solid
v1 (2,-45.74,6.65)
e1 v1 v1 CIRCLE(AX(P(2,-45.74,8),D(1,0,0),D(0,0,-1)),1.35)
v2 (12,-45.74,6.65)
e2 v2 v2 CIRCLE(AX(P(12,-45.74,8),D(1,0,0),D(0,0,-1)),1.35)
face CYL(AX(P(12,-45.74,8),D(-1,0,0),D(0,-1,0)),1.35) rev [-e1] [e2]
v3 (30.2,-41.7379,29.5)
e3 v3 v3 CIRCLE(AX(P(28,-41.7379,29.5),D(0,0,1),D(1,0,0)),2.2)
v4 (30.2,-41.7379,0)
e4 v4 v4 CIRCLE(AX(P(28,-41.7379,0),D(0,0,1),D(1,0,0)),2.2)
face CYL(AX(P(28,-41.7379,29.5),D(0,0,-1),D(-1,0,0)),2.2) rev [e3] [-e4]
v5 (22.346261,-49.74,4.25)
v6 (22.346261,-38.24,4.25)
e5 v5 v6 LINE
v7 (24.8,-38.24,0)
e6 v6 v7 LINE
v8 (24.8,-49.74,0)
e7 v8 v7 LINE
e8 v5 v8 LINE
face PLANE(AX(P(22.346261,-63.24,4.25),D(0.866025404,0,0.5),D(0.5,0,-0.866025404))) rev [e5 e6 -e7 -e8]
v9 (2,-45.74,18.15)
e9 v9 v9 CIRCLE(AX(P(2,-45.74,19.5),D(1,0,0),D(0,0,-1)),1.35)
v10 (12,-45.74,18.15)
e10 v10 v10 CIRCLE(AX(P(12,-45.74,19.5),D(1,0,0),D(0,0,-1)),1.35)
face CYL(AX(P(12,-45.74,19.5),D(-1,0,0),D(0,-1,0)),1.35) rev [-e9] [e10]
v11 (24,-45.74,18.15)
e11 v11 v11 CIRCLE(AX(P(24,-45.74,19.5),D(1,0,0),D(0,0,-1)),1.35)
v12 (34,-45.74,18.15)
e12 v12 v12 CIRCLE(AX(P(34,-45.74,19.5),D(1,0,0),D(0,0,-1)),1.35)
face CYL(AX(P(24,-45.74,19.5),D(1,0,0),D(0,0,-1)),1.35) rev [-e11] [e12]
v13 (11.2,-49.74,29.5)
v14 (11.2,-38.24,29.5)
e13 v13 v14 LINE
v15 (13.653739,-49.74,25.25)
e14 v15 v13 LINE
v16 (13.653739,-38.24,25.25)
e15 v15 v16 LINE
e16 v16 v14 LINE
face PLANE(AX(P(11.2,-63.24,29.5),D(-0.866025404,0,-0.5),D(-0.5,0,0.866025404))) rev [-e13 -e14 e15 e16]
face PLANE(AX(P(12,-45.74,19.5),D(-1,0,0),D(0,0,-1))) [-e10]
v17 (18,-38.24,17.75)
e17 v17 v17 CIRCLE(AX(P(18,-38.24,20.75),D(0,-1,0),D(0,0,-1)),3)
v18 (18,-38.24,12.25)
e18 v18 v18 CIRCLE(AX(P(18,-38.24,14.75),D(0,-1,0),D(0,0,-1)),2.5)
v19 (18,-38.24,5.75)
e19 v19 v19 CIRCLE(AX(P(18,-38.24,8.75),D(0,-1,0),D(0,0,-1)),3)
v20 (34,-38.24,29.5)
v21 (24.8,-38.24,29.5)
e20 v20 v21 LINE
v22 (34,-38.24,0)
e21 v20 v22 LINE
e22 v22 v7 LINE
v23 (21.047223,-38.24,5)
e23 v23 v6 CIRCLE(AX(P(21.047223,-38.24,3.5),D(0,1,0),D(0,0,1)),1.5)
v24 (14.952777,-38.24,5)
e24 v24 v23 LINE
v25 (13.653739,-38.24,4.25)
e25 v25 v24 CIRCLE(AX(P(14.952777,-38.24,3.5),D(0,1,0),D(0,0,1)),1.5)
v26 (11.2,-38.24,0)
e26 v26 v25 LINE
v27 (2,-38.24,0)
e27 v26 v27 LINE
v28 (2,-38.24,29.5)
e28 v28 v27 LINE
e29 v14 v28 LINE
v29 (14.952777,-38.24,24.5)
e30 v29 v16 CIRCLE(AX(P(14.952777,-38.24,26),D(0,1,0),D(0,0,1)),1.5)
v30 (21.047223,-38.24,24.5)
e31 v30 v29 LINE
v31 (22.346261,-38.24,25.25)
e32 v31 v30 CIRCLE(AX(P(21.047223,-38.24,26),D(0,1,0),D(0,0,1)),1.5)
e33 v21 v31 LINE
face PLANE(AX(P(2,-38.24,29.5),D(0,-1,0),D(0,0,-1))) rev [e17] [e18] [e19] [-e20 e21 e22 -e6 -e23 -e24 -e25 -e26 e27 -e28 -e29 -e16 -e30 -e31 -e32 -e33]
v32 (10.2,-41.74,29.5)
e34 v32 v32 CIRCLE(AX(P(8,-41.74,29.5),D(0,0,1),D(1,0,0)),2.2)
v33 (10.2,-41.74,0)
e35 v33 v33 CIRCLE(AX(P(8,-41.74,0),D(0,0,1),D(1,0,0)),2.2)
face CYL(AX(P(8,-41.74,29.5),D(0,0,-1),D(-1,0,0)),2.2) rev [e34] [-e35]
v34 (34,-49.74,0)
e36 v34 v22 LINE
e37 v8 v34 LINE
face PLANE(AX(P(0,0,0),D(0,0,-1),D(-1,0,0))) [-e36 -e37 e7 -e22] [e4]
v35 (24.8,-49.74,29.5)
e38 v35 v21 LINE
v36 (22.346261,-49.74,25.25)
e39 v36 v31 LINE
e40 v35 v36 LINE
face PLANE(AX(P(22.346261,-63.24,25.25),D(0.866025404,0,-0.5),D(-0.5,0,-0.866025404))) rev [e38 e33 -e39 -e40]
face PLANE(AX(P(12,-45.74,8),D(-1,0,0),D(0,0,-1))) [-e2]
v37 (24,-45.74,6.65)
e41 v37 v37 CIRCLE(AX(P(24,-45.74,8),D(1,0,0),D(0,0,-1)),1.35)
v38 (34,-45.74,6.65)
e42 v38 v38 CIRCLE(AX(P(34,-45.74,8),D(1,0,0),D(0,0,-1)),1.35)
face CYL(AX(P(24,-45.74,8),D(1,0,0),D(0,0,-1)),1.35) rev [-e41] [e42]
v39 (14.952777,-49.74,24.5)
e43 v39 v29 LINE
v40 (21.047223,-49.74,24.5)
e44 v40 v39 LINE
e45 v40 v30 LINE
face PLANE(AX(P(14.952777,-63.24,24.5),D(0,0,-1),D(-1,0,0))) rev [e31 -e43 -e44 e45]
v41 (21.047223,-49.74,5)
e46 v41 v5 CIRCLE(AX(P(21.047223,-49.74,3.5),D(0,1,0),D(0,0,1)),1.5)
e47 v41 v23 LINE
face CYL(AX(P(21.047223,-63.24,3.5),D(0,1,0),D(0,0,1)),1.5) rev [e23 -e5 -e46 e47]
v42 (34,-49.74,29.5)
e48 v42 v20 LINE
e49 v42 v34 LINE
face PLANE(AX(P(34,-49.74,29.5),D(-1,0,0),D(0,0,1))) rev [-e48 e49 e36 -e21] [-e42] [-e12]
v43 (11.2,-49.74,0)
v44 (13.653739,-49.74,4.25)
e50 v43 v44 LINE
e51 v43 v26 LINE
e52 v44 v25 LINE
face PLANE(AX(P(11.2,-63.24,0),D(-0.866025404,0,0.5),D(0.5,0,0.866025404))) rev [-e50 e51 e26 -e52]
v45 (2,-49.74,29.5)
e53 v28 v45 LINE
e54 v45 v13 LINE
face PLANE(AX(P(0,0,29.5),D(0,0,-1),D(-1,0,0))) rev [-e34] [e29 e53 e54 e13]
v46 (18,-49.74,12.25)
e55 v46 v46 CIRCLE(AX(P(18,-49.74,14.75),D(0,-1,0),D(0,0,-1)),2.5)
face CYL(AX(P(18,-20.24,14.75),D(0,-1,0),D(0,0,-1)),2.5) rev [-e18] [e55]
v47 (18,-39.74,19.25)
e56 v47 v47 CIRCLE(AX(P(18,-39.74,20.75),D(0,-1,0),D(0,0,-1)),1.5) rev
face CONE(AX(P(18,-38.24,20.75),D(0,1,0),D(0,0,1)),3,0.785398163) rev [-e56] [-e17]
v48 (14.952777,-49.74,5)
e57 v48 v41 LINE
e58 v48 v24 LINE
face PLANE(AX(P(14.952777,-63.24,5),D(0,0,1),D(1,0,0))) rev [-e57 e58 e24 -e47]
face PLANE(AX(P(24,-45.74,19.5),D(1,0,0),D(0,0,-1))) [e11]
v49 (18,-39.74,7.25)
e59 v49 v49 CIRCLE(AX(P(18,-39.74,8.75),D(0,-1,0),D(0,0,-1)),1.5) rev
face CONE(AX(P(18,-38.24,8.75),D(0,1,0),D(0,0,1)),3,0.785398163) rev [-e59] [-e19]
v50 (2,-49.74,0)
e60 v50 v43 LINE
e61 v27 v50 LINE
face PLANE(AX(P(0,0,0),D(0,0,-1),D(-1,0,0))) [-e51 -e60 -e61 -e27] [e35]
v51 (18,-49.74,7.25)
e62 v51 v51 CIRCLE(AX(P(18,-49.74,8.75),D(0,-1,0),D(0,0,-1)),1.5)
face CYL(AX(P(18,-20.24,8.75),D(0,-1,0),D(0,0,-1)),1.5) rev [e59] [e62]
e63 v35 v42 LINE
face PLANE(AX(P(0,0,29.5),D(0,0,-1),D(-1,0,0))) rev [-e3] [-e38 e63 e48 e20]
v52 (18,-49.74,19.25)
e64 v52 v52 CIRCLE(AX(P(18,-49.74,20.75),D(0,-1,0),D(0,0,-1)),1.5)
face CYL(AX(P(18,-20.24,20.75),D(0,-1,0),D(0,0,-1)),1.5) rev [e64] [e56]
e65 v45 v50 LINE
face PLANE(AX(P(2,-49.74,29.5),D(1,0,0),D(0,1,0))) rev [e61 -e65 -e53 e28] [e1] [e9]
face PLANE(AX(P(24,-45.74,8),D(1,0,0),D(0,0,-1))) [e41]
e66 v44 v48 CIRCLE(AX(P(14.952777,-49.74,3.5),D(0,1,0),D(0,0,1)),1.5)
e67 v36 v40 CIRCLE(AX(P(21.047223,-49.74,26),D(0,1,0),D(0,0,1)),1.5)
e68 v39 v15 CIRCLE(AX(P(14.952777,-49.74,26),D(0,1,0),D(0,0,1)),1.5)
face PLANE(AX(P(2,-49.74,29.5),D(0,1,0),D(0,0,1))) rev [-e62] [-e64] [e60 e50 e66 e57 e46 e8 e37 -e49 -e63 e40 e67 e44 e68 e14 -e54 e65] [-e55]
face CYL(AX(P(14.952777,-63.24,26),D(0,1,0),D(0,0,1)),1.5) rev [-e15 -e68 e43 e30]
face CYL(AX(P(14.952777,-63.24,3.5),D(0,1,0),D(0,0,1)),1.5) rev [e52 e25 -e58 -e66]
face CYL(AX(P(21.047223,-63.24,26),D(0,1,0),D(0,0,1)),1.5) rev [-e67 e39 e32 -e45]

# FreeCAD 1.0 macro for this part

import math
import FreeCAD as App
import Part
import Sketcher
from FreeCAD import Vector
Q = App.Units.Quantity


def edges_at(feature, points):
    """Names of the edges that pass closest to the given points."""
    edges = feature.Shape.Edges
    near = lambda p: min(range(len(edges)), key=lambda i: edges[i].distToShape(Part.Vertex(*p))[0])
    return sorted({f"Edge{near(p) + 1}" for p in points})


def add_polygon(sketch, points):
    """Adds a closed chain of lines whose ends are joined by coincident constraints."""
    first, n = sketch.GeometryCount, len(points)
    for a, b in zip(points, points[1:] + points[:1]):
        sketch.addGeometry(Part.LineSegment(App.Vector(*a, 0), App.Vector(*b, 0)), False)
    for i in range(n):
        sketch.addConstraint(Sketcher.Constraint("Coincident", first + i, 2, first + (i + 1) % n, 1))

doc = App.newDocument("Part")
params = doc.addObject("Spreadsheet::Sheet", "Params")
for row, (alias, value) in enumerate([
    ("sketch1_diameter", "4.4 mm"),
    ("sketch1_width", "32 mm"),
    ("sketch1_height", "11.5 mm"),
    ("pad1_length", "29.5 mm"),
    ("sketch2_diameter", "5 mm"),
    ("pocket1_length", "29.5 mm"),
    ("sketch3_diameter", "3 mm"),
    ("pocket2_length", "29.5 mm"),
    ("chamfer_size", "1.5 mm"),
    ("sketch4_diameter", "2.7 mm"),
    ("pocket3_length", "10 mm"),
    ("sketch5_radius", "1.5 mm"),
    ("sketch5_width", "13.6 mm"),
    ("pocket4_length", "25 mm"),
], start=1):
    params.set(f"A{row}", alias)
    params.set(f"B{row}", "=" + value)
    params.setAlias(f"B{row}", alias)

body = doc.addObject("PartDesign::Body", "Body")

# Sketch on XY plane
sketch1 = body.newObject("Sketcher::SketchObject", "Sketch")
sketch1.AttachmentSupport = (doc.getObject("XY_Plane"), [""])
sketch1.MapMode = "FlatFace"
add_polygon(sketch1, [(2, -38.2), (2, -49.7), (34, -49.7), (34, -38.2)])  # lines 0-3
sketch1.addGeometry(Part.Circle(Vector(8, -41.7, 0), Vector(0, 0, 1), 2.2), False)  # 4
sketch1.addGeometry(Part.Circle(Vector(28, -41.7, 0), Vector(0, 0, 1), 2.2), False)  # 5
sketch1.addConstraint([
    Sketcher.Constraint("Vertical", 0),
    Sketcher.Constraint("Horizontal", 1),
    Sketcher.Constraint("Vertical", 2),
    Sketcher.Constraint("Horizontal", 3),
    Sketcher.Constraint("Equal", 4, 5),
    Sketcher.Constraint("Diameter", 4, Q("4.4 mm")),
    Sketcher.Constraint("DistanceX", 1, 1, 1, 2, Q("32 mm")),
    Sketcher.Constraint("DistanceY", 0, 2, 0, 1, Q("11.5 mm")),
    Sketcher.Constraint("DistanceX", -1, 1, 4, 3, Q("8 mm")),
    Sketcher.Constraint("DistanceX", -1, 1, 5, 3, Q("28 mm")),
    Sketcher.Constraint("DistanceX", -1, 1, 0, 2, Q("2 mm")),
    Sketcher.Constraint("DistanceY", 0, 2, 4, 3, Q("8 mm")),
    Sketcher.Constraint("DistanceY", 4, 3, -1, 1, Q("41.74 mm")),
    Sketcher.Constraint("DistanceY", 5, 3, -1, 1, Q("41.7379 mm")),
])
sketch1.setExpression("Constraints[9]", "Params.sketch1_diameter")
sketch1.setExpression("Constraints[10]", "Params.sketch1_width")
sketch1.setExpression("Constraints[11]", "Params.sketch1_height")
pad1 = body.newObject("PartDesign::Pad", "Pad")
pad1.Profile = sketch1
pad1.setExpression("Length", "Params.pad1_length")

# Sketch on XZ plane
sketch2 = body.newObject("Sketcher::SketchObject", "Sketch001")
sketch2.AttachmentSupport = (doc.getObject("XZ_Plane"), [""])
sketch2.MapMode = "FlatFace"
sketch2.AttachmentOffset = App.Placement(Vector(0, 0, 49.74), App.Rotation())
sketch2.addGeometry(Part.Circle(Vector(18, 14.8, 0), Vector(0, 0, 1), 2.5), False)
sketch2.addConstraint([
    Sketcher.Constraint("Diameter", 0, Q("5 mm")),
    Sketcher.Constraint("DistanceX", -1, 1, 0, 3, Q("18 mm")),
    Sketcher.Constraint("DistanceY", -1, 1, 0, 3, Q("14.75 mm")),
])
sketch2.setExpression("Constraints[0]", "Params.sketch2_diameter")
pocket1 = body.newObject("PartDesign::Pocket", "Pocket")
pocket1.Profile = sketch2
pocket1.setExpression("Length", "Params.pocket1_length")

# Sketch on XZ plane
sketch3 = body.newObject("Sketcher::SketchObject", "Sketch002")
sketch3.AttachmentSupport = (doc.getObject("XZ_Plane"), [""])
sketch3.MapMode = "FlatFace"
sketch3.AttachmentOffset = App.Placement(Vector(0, 0, 49.74), App.Rotation())
sketch3.addGeometry([
    Part.Circle(Vector(18, 8.8, 0), Vector(0, 0, 1), 1.5),
    Part.Circle(Vector(18, 20.8, 0), Vector(0, 0, 1), 1.5),
], False)
sketch3.addConstraint([
    Sketcher.Constraint("Equal", 0, 1),
    Sketcher.Constraint("Vertical", 0, 3, 1, 3),
    Sketcher.Constraint("Diameter", 0, Q("3 mm")),
    Sketcher.Constraint("DistanceX", -1, 1, 0, 3, Q("18 mm")),
    Sketcher.Constraint("DistanceY", 0, 3, 1, 3, Q("12 mm")),
    Sketcher.Constraint("DistanceY", -1, 1, 0, 3, Q("8.75 mm")),
])
sketch3.setExpression("Constraints[2]", "Params.sketch3_diameter")
pocket2 = body.newObject("PartDesign::Pocket", "Pocket001")
pocket2.Profile = sketch3
pocket2.setExpression("Length", "Params.pocket2_length")
doc.recompute()

chamfer = body.newObject("PartDesign::Chamfer", "Chamfer")
chamfer.Base = (pocket2, edges_at(pocket2, [(18, -38.24, 10.25), (18, -38.24, 22.25)]))
chamfer.setExpression("Size", "Params.chamfer_size")

# Sketch on YZ plane
sketch4 = body.newObject("Sketcher::SketchObject", "Sketch003")
sketch4.AttachmentSupport = (doc.getObject("YZ_Plane"), [""])
sketch4.MapMode = "FlatFace"
sketch4.AttachmentOffset = App.Placement(Vector(0, 0, 34), App.Rotation())
sketch4.addGeometry([
    Part.Circle(Vector(-45.7, 19.5, 0), Vector(0, 0, 1), 1.4),
    Part.Circle(Vector(-45.7, 8, 0), Vector(0, 0, 1), 1.4),
], False)
sketch4.addConstraint([
    Sketcher.Constraint("Equal", 0, 1),
    Sketcher.Constraint("Vertical", 0, 3, 1, 3),
    Sketcher.Constraint("Diameter", 0, Q("2.7 mm")),
    Sketcher.Constraint("DistanceY", -1, 1, 1, 3, Q("8 mm")),
    Sketcher.Constraint("DistanceY", -1, 1, 0, 3, Q("19.5 mm")),
    Sketcher.Constraint("DistanceX", 0, 3, -1, 1, Q("45.74 mm")),
])
sketch4.setExpression("Constraints[2]", "Params.sketch4_diameter")
pocket3 = body.newObject("PartDesign::Pocket", "Pocket002")
pocket3.Profile = sketch4
pocket3.setExpression("Length", "Params.pocket3_length")
doc.recompute()

datumplane = body.newObject("PartDesign::Plane", "DatumPlane")
datumplane.AttachmentSupport = (doc.getObject("YZ_Plane"), [""])
datumplane.MapMode = "FlatFace"
datumplane.AttachmentOffset = App.Placement(Vector(0, 0, 18), App.Rotation())
mirrored = body.newObject("PartDesign::Mirrored", "Mirrored")
mirrored.Originals = [pocket3]
mirrored.MirrorPlane = (datumplane, [""])
body.Tip = mirrored

# Sketch on XZ plane
sketch5 = body.newObject("Sketcher::SketchObject", "Sketch004")
sketch5.AttachmentSupport = (doc.getObject("XZ_Plane"), [""])
sketch5.MapMode = "FlatFace"
sketch5.AttachmentOffset = App.Placement(Vector(0, 0, 38.24), App.Rotation())
sketch5.addGeometry([
    Part.LineSegment(Vector(11.2, 0, 0), Vector(13.7, 4.2, 0)),  # 0
    Part.ArcOfCircle(Part.Circle(Vector(15, 3.5, 0), Vector(0, 0, 1), 1.5), math.radians(90), math.radians(150)),  # 1
    Part.LineSegment(Vector(15, 5, 0), Vector(21, 5, 0)),  # 2
    Part.ArcOfCircle(Part.Circle(Vector(21, 3.5, 0), Vector(0, 0, 1), 1.5), math.radians(30), math.radians(90)),  # 3
    Part.LineSegment(Vector(22.3, 4.2, 0), Vector(24.8, 0, 0)),  # 4
    Part.LineSegment(Vector(24.8, 0, 0), Vector(11.2, 0, 0)),  # 5
    Part.LineSegment(Vector(11.2, 29.5, 0), Vector(24.8, 29.5, 0)),  # 6
    Part.LineSegment(Vector(24.8, 29.5, 0), Vector(22.3, 25.2, 0)),  # 7
    Part.ArcOfCircle(Part.Circle(Vector(21, 26, 0), Vector(0, 0, 1), 1.5), math.radians(-90), math.radians(-30)),  # 8
    Part.LineSegment(Vector(21, 24.5, 0), Vector(15, 24.5, 0)),  # 9
    Part.ArcOfCircle(Part.Circle(Vector(15, 26, 0), Vector(0, 0, 1), 1.5), math.radians(-150), math.radians(-90)),  # 10
    Part.LineSegment(Vector(13.7, 25.2, 0), Vector(11.2, 29.5, 0)),  # 11
], False)
sketch5.addConstraint([
    Sketcher.Constraint("Tangent", 0, 2, 1, 2),
    Sketcher.Constraint("Tangent", 1, 1, 2, 1),
    Sketcher.Constraint("Tangent", 2, 2, 3, 2),
    Sketcher.Constraint("Tangent", 3, 1, 4, 1),
    Sketcher.Constraint("Coincident", 4, 2, 5, 1),
    Sketcher.Constraint("Coincident", 5, 2, 0, 1),
    Sketcher.Constraint("Coincident", 6, 2, 7, 1),
    Sketcher.Constraint("Tangent", 7, 2, 8, 2),
    Sketcher.Constraint("Tangent", 8, 1, 9, 1),
    Sketcher.Constraint("Tangent", 9, 2, 10, 2),
    Sketcher.Constraint("Tangent", 10, 1, 11, 1),
    Sketcher.Constraint("Coincident", 11, 2, 6, 1),
    Sketcher.Constraint("Horizontal", 2),
    Sketcher.Constraint("Horizontal", 5),
    Sketcher.Constraint("Horizontal", 6),
    Sketcher.Constraint("Horizontal", 9),
    Sketcher.Constraint("Equal", 1, 3),
    Sketcher.Constraint("Equal", 3, 8),
    Sketcher.Constraint("Equal", 8, 10),
    Sketcher.Constraint("PointOnObject", 4, 2, -1),
    Sketcher.Constraint("Parallel", 0, 7),
    Sketcher.Constraint("Parallel", 4, 11),
    Sketcher.Constraint("Horizontal", 0, 2, 3, 1),
    Sketcher.Constraint("Vertical", 3, 3, 8, 3),
    Sketcher.Constraint("Vertical", 1, 3, 10, 3),
    Sketcher.Constraint("Vertical", 4, 2, 6, 2),
    Sketcher.Constraint("Radius", 1, Q("1.5 mm")),
    Sketcher.Constraint("Angle", 0, Q("60 deg")),
    Sketcher.Constraint("DistanceX", 5, 2, 5, 1, Q("13.6 mm")),
    Sketcher.Constraint("DistanceY", -1, 1, 8, 3, Q("26 mm")),
    Sketcher.Constraint("DistanceY", -1, 1, 1, 1, Q("5 mm")),
    Sketcher.Constraint("DistanceX", -1, 1, 4, 2, Q("24.8 mm")),
])
sketch5.setExpression("Constraints[26]", "Params.sketch5_radius")
sketch5.setExpression("Constraints[28]", "Params.sketch5_width")
pocket4 = body.newObject("PartDesign::Pocket", "Pocket003")
pocket4.Profile = sketch5
pocket4.setExpression("Length", "Params.pocket4_length")
pocket4.Reversed = True

doc.recompute()
